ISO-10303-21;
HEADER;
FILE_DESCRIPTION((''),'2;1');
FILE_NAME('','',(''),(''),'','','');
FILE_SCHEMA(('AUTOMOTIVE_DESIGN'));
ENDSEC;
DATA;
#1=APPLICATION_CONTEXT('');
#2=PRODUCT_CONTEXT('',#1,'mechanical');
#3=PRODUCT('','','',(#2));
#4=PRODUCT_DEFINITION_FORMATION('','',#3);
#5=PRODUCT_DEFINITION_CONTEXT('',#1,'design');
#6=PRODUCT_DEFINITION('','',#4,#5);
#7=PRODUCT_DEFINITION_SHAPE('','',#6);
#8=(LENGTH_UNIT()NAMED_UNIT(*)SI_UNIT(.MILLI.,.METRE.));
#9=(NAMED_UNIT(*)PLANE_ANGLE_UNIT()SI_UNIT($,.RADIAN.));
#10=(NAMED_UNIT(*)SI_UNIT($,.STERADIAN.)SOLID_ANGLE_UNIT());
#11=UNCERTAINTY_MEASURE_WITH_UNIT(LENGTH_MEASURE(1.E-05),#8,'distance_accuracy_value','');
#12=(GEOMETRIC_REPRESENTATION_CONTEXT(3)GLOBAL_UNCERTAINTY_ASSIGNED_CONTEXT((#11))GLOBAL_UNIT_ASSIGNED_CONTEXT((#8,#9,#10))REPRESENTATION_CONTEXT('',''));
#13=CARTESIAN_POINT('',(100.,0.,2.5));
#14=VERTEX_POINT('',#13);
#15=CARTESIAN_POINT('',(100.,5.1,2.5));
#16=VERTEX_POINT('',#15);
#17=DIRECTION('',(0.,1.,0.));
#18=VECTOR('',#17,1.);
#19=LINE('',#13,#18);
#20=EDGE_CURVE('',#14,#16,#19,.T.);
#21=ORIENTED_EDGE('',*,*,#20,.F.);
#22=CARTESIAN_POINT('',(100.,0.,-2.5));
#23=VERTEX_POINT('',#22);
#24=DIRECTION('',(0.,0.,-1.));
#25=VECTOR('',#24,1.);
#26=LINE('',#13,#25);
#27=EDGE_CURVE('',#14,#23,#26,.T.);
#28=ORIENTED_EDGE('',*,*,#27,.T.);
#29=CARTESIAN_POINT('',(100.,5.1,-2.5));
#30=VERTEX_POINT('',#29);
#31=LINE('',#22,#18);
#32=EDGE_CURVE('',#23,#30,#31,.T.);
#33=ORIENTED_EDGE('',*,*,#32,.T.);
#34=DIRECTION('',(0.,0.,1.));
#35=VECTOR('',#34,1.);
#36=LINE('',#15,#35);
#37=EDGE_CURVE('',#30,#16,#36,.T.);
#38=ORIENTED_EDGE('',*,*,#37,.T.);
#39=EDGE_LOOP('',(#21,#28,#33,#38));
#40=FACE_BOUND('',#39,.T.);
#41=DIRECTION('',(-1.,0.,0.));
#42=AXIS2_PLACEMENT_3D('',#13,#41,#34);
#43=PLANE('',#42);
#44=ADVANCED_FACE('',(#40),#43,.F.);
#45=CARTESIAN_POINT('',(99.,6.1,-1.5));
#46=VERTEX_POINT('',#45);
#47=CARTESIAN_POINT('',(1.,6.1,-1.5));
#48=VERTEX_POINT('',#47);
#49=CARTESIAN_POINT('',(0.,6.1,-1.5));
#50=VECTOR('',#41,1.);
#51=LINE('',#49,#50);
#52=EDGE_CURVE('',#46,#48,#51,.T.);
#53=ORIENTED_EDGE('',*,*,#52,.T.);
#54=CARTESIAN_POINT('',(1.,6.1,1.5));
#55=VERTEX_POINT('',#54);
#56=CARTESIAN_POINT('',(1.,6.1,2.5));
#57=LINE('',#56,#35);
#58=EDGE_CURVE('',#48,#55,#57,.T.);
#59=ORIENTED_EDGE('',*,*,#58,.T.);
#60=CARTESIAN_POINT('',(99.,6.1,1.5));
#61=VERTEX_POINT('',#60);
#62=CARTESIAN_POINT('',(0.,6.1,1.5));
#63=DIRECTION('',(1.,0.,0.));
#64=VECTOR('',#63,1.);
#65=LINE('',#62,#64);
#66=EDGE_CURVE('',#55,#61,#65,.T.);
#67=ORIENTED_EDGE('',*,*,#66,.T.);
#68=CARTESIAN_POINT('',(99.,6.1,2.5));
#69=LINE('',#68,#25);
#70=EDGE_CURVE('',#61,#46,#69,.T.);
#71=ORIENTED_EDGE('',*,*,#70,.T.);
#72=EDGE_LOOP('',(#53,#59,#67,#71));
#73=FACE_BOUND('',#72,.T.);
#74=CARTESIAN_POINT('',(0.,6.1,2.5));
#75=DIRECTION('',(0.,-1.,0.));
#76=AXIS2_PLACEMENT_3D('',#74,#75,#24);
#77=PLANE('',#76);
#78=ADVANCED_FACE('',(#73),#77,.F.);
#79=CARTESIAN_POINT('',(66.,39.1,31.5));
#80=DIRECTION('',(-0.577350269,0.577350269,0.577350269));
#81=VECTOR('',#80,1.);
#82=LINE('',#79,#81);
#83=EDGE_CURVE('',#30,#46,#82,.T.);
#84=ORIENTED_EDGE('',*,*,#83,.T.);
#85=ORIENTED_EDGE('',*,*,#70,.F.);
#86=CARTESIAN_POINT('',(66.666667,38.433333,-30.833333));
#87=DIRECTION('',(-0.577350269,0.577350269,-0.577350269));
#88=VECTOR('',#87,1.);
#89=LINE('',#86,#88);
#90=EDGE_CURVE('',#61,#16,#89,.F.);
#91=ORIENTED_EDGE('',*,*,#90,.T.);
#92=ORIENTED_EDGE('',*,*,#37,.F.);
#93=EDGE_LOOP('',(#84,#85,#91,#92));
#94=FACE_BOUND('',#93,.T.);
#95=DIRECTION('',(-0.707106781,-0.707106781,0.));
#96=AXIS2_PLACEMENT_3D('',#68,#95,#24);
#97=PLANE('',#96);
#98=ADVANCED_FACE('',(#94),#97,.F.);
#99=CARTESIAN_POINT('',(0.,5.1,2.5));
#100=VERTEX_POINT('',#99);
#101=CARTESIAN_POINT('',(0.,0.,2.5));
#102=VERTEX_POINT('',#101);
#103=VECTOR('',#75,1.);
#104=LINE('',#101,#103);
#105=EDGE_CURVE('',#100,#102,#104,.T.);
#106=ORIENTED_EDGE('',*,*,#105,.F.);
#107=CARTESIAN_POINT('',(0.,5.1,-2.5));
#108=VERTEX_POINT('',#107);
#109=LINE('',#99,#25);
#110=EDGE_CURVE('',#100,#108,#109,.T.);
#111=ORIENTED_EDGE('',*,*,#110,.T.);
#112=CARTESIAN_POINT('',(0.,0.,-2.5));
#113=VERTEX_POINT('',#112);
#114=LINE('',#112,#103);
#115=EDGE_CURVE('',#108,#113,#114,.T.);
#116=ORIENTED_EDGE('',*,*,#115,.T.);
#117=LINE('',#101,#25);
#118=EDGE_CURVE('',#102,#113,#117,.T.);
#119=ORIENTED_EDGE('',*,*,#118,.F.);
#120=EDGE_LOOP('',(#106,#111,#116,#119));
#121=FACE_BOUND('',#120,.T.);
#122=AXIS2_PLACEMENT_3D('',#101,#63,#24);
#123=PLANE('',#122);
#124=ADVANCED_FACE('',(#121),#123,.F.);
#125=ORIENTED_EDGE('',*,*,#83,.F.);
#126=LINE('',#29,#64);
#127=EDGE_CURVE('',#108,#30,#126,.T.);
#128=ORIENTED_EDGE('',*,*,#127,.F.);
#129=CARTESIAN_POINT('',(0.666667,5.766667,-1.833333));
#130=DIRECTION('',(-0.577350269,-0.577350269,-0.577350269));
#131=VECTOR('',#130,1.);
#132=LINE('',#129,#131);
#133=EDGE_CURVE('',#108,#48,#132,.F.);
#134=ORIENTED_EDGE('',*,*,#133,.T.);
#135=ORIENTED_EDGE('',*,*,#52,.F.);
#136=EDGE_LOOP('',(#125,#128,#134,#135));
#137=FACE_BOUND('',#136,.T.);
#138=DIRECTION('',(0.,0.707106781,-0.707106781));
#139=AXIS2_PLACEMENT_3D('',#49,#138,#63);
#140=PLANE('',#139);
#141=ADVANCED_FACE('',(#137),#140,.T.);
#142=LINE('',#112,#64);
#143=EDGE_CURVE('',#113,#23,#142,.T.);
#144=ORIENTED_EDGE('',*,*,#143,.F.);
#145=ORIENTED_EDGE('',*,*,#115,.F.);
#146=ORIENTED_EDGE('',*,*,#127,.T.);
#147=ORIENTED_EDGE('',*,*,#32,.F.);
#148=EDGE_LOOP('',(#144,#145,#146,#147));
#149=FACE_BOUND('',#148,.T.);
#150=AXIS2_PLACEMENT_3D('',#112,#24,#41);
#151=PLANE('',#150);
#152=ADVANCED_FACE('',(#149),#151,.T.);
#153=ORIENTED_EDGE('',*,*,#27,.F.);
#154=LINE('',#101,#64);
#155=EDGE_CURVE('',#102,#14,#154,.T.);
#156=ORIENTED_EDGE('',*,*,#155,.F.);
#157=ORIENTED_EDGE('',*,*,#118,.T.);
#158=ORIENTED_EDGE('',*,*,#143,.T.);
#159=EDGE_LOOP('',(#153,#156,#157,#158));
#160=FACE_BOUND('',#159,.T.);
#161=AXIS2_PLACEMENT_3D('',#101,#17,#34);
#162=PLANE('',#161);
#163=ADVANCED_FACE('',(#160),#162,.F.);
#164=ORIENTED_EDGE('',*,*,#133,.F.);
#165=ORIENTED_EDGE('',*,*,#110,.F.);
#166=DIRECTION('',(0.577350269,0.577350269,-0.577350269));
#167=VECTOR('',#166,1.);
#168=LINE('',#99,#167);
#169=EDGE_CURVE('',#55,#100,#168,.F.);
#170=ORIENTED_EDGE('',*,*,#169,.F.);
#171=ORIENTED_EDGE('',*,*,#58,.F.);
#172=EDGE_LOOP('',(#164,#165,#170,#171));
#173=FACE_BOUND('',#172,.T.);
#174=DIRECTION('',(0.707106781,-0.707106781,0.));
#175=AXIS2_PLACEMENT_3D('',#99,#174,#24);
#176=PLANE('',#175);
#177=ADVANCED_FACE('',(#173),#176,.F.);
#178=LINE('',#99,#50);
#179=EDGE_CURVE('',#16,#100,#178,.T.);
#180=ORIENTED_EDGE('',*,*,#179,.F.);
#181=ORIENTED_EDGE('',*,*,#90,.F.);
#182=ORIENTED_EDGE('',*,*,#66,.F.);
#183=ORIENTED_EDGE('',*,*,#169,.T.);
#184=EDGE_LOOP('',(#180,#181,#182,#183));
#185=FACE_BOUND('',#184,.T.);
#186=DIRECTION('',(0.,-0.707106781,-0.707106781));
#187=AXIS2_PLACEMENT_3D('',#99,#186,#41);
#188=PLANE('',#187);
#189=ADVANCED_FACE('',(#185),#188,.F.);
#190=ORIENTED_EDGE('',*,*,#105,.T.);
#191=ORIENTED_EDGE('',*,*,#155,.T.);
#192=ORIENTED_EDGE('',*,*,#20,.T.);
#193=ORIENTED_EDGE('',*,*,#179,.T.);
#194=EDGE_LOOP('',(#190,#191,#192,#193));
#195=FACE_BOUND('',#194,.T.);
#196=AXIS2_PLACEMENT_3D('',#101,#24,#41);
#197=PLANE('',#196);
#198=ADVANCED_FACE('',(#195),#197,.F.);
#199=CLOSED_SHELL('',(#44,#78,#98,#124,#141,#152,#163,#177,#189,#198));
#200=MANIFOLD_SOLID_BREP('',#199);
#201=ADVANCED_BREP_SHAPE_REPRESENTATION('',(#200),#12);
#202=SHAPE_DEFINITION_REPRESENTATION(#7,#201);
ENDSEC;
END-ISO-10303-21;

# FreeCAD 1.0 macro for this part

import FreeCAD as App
import Part
import Sketcher
Q = App.Units.Quantity


def edges_at(feature, points):
    """Names of the edges that pass closest to the given points."""
    edges = feature.Shape.Edges
    near = lambda p: min(range(len(edges)), key=lambda i: edges[i].distToShape(Part.Vertex(*p))[0])
    return sorted({f"Edge{near(p) + 1}" for p in points})


def add_polygon(sketch, points):
    """Adds a closed chain of lines whose ends are joined by coincident constraints."""
    first, n = sketch.GeometryCount, len(points)
    for a, b in zip(points, points[1:] + points[:1]):
        sketch.addGeometry(Part.LineSegment(App.Vector(*a, 0), App.Vector(*b, 0)), False)
    for i in range(n):
        sketch.addConstraint(Sketcher.Constraint("Coincident", first + i, 2, first + (i + 1) % n, 1))

doc = App.newDocument("Part")
body = doc.addObject("PartDesign::Body", "Body")

# Sketch on XY plane
sketch1 = body.newObject("Sketcher::SketchObject", "Sketch")
sketch1.AttachmentSupport = (doc.getObject("XY_Plane"), [""])
sketch1.MapMode = "FlatFace"
add_polygon(sketch1, [(0, 6), (0, 0), (100, 0), (100, 6)])  # lines 0-3
sketch1.addConstraint(Sketcher.Constraint("Vertical", 0))
sketch1.addConstraint(Sketcher.Constraint("Horizontal", 1))
sketch1.addConstraint(Sketcher.Constraint("Vertical", 2))
sketch1.addConstraint(Sketcher.Constraint("Horizontal", 3))
sketch1.addConstraint(Sketcher.Constraint("Coincident", 0, 2, -1, 1))
sketch1.addConstraint(Sketcher.Constraint("DistanceX", 1, 1, 1, 2, Q("100 mm")))
sketch1.addConstraint(Sketcher.Constraint("DistanceY", 0, 2, 0, 1, Q("6.1 mm")))
pad1 = body.newObject("PartDesign::Pad", "Pad")
pad1.Profile = sketch1
pad1.Length = 5
pad1.Midplane = True
doc.recompute()

chamfer = body.newObject("PartDesign::Chamfer", "Chamfer")
chamfer.Base = (pad1, edges_at(pad1, [
    (50, 6.1, 2.5),
    (50, 6.1, -2.5),
    (0, 6.1, 0),
    (100, 6.1, 0),
]))
chamfer.Size = 1

doc.recompute()
